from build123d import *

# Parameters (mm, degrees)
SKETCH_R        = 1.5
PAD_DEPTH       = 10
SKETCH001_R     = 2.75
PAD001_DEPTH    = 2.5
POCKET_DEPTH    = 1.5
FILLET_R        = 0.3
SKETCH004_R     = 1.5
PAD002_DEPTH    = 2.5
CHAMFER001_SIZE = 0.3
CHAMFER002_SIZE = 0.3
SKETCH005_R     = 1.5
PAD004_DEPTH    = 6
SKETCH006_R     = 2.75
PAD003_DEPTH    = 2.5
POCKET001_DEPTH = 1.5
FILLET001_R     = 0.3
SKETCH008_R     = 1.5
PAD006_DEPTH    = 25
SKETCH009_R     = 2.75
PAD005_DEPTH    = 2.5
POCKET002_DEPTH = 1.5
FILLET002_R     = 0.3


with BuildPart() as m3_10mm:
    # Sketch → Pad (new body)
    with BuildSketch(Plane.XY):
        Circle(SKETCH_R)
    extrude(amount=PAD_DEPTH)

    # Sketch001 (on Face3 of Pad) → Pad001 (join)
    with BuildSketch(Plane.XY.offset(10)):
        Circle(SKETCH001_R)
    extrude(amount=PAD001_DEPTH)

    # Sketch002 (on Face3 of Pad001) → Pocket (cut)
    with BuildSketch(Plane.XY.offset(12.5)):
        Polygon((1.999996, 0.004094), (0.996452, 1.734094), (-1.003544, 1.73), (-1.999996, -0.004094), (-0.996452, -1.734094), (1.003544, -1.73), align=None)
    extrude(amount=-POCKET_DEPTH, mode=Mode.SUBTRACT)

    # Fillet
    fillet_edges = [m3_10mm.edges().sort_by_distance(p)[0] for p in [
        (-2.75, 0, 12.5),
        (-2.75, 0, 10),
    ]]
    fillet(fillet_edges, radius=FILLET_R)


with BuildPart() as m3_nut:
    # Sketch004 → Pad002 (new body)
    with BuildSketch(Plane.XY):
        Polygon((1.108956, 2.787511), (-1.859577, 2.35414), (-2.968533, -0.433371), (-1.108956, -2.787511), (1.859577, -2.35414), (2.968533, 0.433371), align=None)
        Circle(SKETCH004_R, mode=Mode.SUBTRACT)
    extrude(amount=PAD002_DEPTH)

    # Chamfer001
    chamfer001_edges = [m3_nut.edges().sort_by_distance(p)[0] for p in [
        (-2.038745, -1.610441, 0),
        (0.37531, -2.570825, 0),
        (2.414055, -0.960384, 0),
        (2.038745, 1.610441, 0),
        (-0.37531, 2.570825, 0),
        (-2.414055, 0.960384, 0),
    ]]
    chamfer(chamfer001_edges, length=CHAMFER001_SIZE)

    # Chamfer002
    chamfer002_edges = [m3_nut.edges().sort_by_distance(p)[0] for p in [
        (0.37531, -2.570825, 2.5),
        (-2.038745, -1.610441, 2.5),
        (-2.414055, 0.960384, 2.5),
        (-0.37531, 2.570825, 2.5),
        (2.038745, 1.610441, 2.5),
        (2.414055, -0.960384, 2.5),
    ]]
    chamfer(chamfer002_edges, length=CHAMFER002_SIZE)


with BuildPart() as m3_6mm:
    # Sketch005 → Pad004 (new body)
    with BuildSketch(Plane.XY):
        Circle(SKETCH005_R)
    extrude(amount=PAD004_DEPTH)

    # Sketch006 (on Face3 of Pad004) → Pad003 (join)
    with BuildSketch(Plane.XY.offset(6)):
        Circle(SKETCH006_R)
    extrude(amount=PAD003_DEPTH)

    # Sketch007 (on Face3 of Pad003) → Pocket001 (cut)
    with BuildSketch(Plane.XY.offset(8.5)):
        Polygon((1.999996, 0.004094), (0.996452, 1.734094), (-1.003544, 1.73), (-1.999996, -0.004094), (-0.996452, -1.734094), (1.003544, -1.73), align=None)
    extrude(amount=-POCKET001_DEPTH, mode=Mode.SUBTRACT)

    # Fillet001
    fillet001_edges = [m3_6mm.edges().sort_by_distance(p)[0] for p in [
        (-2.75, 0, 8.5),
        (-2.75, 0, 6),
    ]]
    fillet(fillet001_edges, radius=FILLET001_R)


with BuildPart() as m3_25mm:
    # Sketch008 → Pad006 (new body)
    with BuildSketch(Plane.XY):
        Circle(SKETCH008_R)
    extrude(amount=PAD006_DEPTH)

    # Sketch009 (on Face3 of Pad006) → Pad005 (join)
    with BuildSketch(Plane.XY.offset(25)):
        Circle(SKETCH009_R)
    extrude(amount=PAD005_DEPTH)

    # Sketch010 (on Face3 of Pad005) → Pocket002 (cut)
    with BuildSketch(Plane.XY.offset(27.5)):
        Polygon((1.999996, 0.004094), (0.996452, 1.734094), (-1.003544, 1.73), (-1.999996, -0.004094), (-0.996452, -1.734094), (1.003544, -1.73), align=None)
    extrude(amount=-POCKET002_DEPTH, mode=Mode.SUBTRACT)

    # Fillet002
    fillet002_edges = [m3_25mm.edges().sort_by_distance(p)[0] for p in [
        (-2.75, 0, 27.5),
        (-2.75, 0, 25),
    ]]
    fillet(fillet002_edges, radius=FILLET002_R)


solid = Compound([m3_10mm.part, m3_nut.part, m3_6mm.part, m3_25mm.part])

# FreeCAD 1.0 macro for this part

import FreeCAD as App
import Part
import Sketcher

V = App.Vector


def edges_at(feature, points):
    """Names of the edges that pass closest to the given points."""
    edges = feature.Shape.Edges
    near = lambda p: min(range(len(edges)), key=lambda i: edges[i].distToShape(Part.Vertex(*p))[0])
    return sorted({f"Edge{near(p) + 1}" for p in points})

doc = App.newDocument("Part")
body = doc.addObject("PartDesign::Body", "Body")

sketch1 = body.newObject("Sketcher::SketchObject", "Sketch")
sketch1.AttachmentSupport = (doc.getObject("XY_Plane"), [""])
sketch1.MapMode = "FlatFace"
sketch1.addGeometry(Part.Circle(V(0, 0, 0), V(0, 0, 1), 1.5), False)
sketch1.addConstraint(Sketcher.Constraint("Coincident", 0, 3, -1, 1))
sketch1.addConstraint(Sketcher.Constraint("Diameter", 0, 3.0))
pad1 = body.newObject("PartDesign::Pad", "Pad")
pad1.Profile = sketch1
pad1.Length = 10

sketch2 = body.newObject("Sketcher::SketchObject", "Sketch001")
sketch2.AttachmentSupport = (doc.getObject("XY_Plane"), [""])
sketch2.MapMode = "FlatFace"
sketch2.AttachmentOffset = App.Placement(V(0, 0, 10), App.Rotation())
sketch2.addGeometry(Part.Circle(V(0, 0, 0), V(0, 0, 1), 2.75), False)
sketch2.addConstraint(Sketcher.Constraint("Coincident", 0, 3, -1, 1))
sketch2.addConstraint(Sketcher.Constraint("Diameter", 0, 5.5))
pad2 = body.newObject("PartDesign::Pad", "Pad001")
pad2.Profile = sketch2
pad2.Length = 2.5

sketch3 = body.newObject("Sketcher::SketchObject", "Sketch002")
sketch3.AttachmentSupport = (doc.getObject("XY_Plane"), [""])
sketch3.MapMode = "FlatFace"
sketch3.AttachmentOffset = App.Placement(V(0, 0, 12.5), App.Rotation())
sketch3.addGeometry(Part.LineSegment(V(1.999996, 0.004094, 0), V(0.996452, 1.734094, 0)), False)
sketch3.addGeometry(Part.LineSegment(V(0.996452, 1.734094, 0), V(-1.003544, 1.73, 0)), False)
sketch3.addGeometry(Part.LineSegment(V(-1.003544, 1.73, 0), V(-1.999996, -0.004094, 0)), False)
sketch3.addGeometry(Part.LineSegment(V(-1.999996, -0.004094, 0), V(-0.996452, -1.734094, 0)), False)
sketch3.addGeometry(Part.LineSegment(V(-0.996452, -1.734094, 0), V(1.003544, -1.73, 0)), False)
sketch3.addGeometry(Part.LineSegment(V(1.003544, -1.73, 0), V(1.999996, 0.004094, 0)), False)
sketch3.addConstraint(Sketcher.Constraint("Coincident", 0, 2, 1, 1))
sketch3.addConstraint(Sketcher.Constraint("Coincident", 1, 2, 2, 1))
sketch3.addConstraint(Sketcher.Constraint("Coincident", 2, 2, 3, 1))
sketch3.addConstraint(Sketcher.Constraint("Coincident", 3, 2, 4, 1))
sketch3.addConstraint(Sketcher.Constraint("Coincident", 4, 2, 5, 1))
sketch3.addConstraint(Sketcher.Constraint("Coincident", 5, 2, 0, 1))
sketch3.addConstraint(Sketcher.Constraint("Symmetric", 0, 2, 3, 2, -1, 1))
sketch3.addConstraint(Sketcher.Constraint("Symmetric", 1, 2, 4, 2, -1, 1))
sketch3.addConstraint(Sketcher.Constraint("Symmetric", 2, 2, 5, 2, -1, 1))
sketch3.addConstraint(Sketcher.Constraint("Equal", 0, 1))
sketch3.addConstraint(Sketcher.Constraint("Equal", 1, 2))
sketch3.addConstraint(Sketcher.Constraint("Distance", 0, 2.0))
sketch3.addConstraint(Sketcher.Constraint("DistanceY", -1, 1, 1, 2, 1.73))
sketch3.addConstraint(Sketcher.Constraint("DistanceY", 3, 2, 2, 2, 1.73))
sketch3.addConstraint(Sketcher.Constraint("DistanceX", 2, 2, 0, 2, 2.996448))
pocket1 = body.newObject("PartDesign::Pocket", "Pocket")
pocket1.Profile = sketch3
pocket1.Length = 1.5
doc.recompute()

fillet = body.newObject("PartDesign::Fillet", "Fillet")
fillet.Base = (pocket1, edges_at(pocket1, [(-2.75, 0, 12.5), (-2.75, 0, 10)]))
fillet.Radius = 0.3
body2 = doc.addObject("PartDesign::Body", "Body001")

sketch4 = body2.newObject("Sketcher::SketchObject", "Sketch003")
sketch4.AttachmentSupport = (doc.getObject("XY_Plane001"), [""])
sketch4.MapMode = "FlatFace"
sketch4.addGeometry(Part.LineSegment(V(1.108956, 2.787511, 0), V(-1.859577, 2.35414, 0)), False)
sketch4.addGeometry(Part.LineSegment(V(-1.859577, 2.35414, 0), V(-2.968533, -0.433371, 0)), False)
sketch4.addGeometry(Part.LineSegment(V(-2.968533, -0.433371, 0), V(-1.108956, -2.787511, 0)), False)
sketch4.addGeometry(Part.LineSegment(V(-1.108956, -2.787511, 0), V(1.859577, -2.35414, 0)), False)
sketch4.addGeometry(Part.LineSegment(V(1.859577, -2.35414, 0), V(2.968533, 0.433371, 0)), False)
sketch4.addGeometry(Part.LineSegment(V(2.968533, 0.433371, 0), V(1.108956, 2.787511, 0)), False)
sketch4.addGeometry(Part.Circle(V(0, 0, 0), V(0, 0, 1), 1.5), False)
sketch4.addConstraint(Sketcher.Constraint("Coincident", 0, 2, 1, 1))
sketch4.addConstraint(Sketcher.Constraint("Coincident", 1, 2, 2, 1))
sketch4.addConstraint(Sketcher.Constraint("Coincident", 2, 2, 3, 1))
sketch4.addConstraint(Sketcher.Constraint("Coincident", 3, 2, 4, 1))
sketch4.addConstraint(Sketcher.Constraint("Coincident", 4, 2, 5, 1))
sketch4.addConstraint(Sketcher.Constraint("Coincident", 5, 2, 0, 1))
sketch4.addConstraint(Sketcher.Constraint("Coincident", 6, 3, -1, 1))
sketch4.addConstraint(Sketcher.Constraint("Symmetric", 0, 2, 3, 2, -1, 1))
sketch4.addConstraint(Sketcher.Constraint("Symmetric", 1, 2, 4, 2, -1, 1))
sketch4.addConstraint(Sketcher.Constraint("Symmetric", 2, 2, 5, 2, -1, 1))
sketch4.addConstraint(Sketcher.Constraint("Equal", 0, 1))
sketch4.addConstraint(Sketcher.Constraint("Equal", 1, 2))
sketch4.addConstraint(Sketcher.Constraint("Diameter", 6, 3.0))
sketch4.addConstraint(Sketcher.Constraint("Distance", 0, 3.0))
sketch4.addConstraint(Sketcher.Constraint("DistanceY", -1, 1, 0, 2, 2.35414))
sketch4.addConstraint(Sketcher.Constraint("DistanceY", 1, 2, -1, 1, 0.433371))
sketch4.addConstraint(Sketcher.Constraint("DistanceY", 2, 2, -1, 1, 2.787511))
pad3 = body2.newObject("PartDesign::Pad", "Pad002")
pad3.Profile = sketch4
pad3.Length = 2.5
doc.recompute()

chamfer = body2.newObject("PartDesign::Chamfer", "Chamfer")
chamfer.Base = (pad3, edges_at(pad3, [
    (-2.039, -1.61, 0),
    (0.375, -2.571, 0),
    (2.414, -0.96, 0),
    (2.039, 1.61, 0),
    (-0.375, 2.571, 0),
    (-2.414, 0.96, 0),
]))
chamfer.Size = 0.3
doc.recompute()

chamfer2 = body2.newObject("PartDesign::Chamfer", "Chamfer001")
chamfer2.Base = (chamfer, edges_at(chamfer, [
    (0.375, -2.571, 2.5),
    (-2.039, -1.61, 2.5),
    (-2.414, 0.96, 2.5),
    (-0.375, 2.571, 2.5),
    (2.039, 1.61, 2.5),
    (2.414, -0.96, 2.5),
]))
chamfer2.Size = 0.3
body3 = doc.addObject("PartDesign::Body", "Body002")

sketch5 = body3.newObject("Sketcher::SketchObject", "Sketch004")
sketch5.AttachmentSupport = (doc.getObject("XY_Plane002"), [""])
sketch5.MapMode = "FlatFace"
sketch5.addGeometry(Part.Circle(V(0, 0, 0), V(0, 0, 1), 1.5), False)
sketch5.addConstraint(Sketcher.Constraint("Coincident", 0, 3, -1, 1))
sketch5.addConstraint(Sketcher.Constraint("Diameter", 0, 3.0))
pad4 = body3.newObject("PartDesign::Pad", "Pad003")
pad4.Profile = sketch5
pad4.Length = 6

sketch6 = body3.newObject("Sketcher::SketchObject", "Sketch005")
sketch6.AttachmentSupport = (doc.getObject("XY_Plane002"), [""])
sketch6.MapMode = "FlatFace"
sketch6.AttachmentOffset = App.Placement(V(0, 0, 6), App.Rotation())
sketch6.addGeometry(Part.Circle(V(0, 0, 0), V(0, 0, 1), 2.75), False)
sketch6.addConstraint(Sketcher.Constraint("Coincident", 0, 3, -1, 1))
sketch6.addConstraint(Sketcher.Constraint("Diameter", 0, 5.5))
pad5 = body3.newObject("PartDesign::Pad", "Pad004")
pad5.Profile = sketch6
pad5.Length = 2.5

sketch7 = body3.newObject("Sketcher::SketchObject", "Sketch006")
sketch7.AttachmentSupport = (doc.getObject("XY_Plane002"), [""])
sketch7.MapMode = "FlatFace"
sketch7.AttachmentOffset = App.Placement(V(0, 0, 8.5), App.Rotation())
sketch7.addGeometry(Part.LineSegment(V(1.999996, 0.004094, 0), V(0.996452, 1.734094, 0)), False)
sketch7.addGeometry(Part.LineSegment(V(0.996452, 1.734094, 0), V(-1.003544, 1.73, 0)), False)
sketch7.addGeometry(Part.LineSegment(V(-1.003544, 1.73, 0), V(-1.999996, -0.004094, 0)), False)
sketch7.addGeometry(Part.LineSegment(V(-1.999996, -0.004094, 0), V(-0.996452, -1.734094, 0)), False)
sketch7.addGeometry(Part.LineSegment(V(-0.996452, -1.734094, 0), V(1.003544, -1.73, 0)), False)
sketch7.addGeometry(Part.LineSegment(V(1.003544, -1.73, 0), V(1.999996, 0.004094, 0)), False)
sketch7.addConstraint(Sketcher.Constraint("Coincident", 0, 2, 1, 1))
sketch7.addConstraint(Sketcher.Constraint("Coincident", 1, 2, 2, 1))
sketch7.addConstraint(Sketcher.Constraint("Coincident", 2, 2, 3, 1))
sketch7.addConstraint(Sketcher.Constraint("Coincident", 3, 2, 4, 1))
sketch7.addConstraint(Sketcher.Constraint("Coincident", 4, 2, 5, 1))
sketch7.addConstraint(Sketcher.Constraint("Coincident", 5, 2, 0, 1))
sketch7.addConstraint(Sketcher.Constraint("Symmetric", 0, 2, 3, 2, -1, 1))
sketch7.addConstraint(Sketcher.Constraint("Symmetric", 1, 2, 4, 2, -1, 1))
sketch7.addConstraint(Sketcher.Constraint("Symmetric", 2, 2, 5, 2, -1, 1))
sketch7.addConstraint(Sketcher.Constraint("Equal", 0, 1))
sketch7.addConstraint(Sketcher.Constraint("Equal", 1, 2))
sketch7.addConstraint(Sketcher.Constraint("Distance", 0, 2.0))
sketch7.addConstraint(Sketcher.Constraint("DistanceY", -1, 1, 1, 2, 1.73))
sketch7.addConstraint(Sketcher.Constraint("DistanceY", 3, 2, 2, 2, 1.73))
sketch7.addConstraint(Sketcher.Constraint("DistanceX", 2, 2, 0, 2, 2.996448))
pocket2 = body3.newObject("PartDesign::Pocket", "Pocket001")
pocket2.Profile = sketch7
pocket2.Length = 1.5
doc.recompute()

fillet2 = body3.newObject("PartDesign::Fillet", "Fillet001")
fillet2.Base = (pocket2, edges_at(pocket2, [(-2.75, 0, 8.5), (-2.75, 0, 6)]))
fillet2.Radius = 0.3
body4 = doc.addObject("PartDesign::Body", "Body003")

sketch8 = body4.newObject("Sketcher::SketchObject", "Sketch007")
sketch8.AttachmentSupport = (doc.getObject("XY_Plane003"), [""])
sketch8.MapMode = "FlatFace"
sketch8.addGeometry(Part.Circle(V(0, 0, 0), V(0, 0, 1), 1.5), False)
sketch8.addConstraint(Sketcher.Constraint("Coincident", 0, 3, -1, 1))
sketch8.addConstraint(Sketcher.Constraint("Diameter", 0, 3.0))
pad6 = body4.newObject("PartDesign::Pad", "Pad005")
pad6.Profile = sketch8
pad6.Length = 25

sketch9 = body4.newObject("Sketcher::SketchObject", "Sketch008")
sketch9.AttachmentSupport = (doc.getObject("XY_Plane003"), [""])
sketch9.MapMode = "FlatFace"
sketch9.AttachmentOffset = App.Placement(V(0, 0, 25), App.Rotation())
sketch9.addGeometry(Part.Circle(V(0, 0, 0), V(0, 0, 1), 2.75), False)
sketch9.addConstraint(Sketcher.Constraint("Coincident", 0, 3, -1, 1))
sketch9.addConstraint(Sketcher.Constraint("Diameter", 0, 5.5))
pad7 = body4.newObject("PartDesign::Pad", "Pad006")
pad7.Profile = sketch9
pad7.Length = 2.5

sketch10 = body4.newObject("Sketcher::SketchObject", "Sketch009")
sketch10.AttachmentSupport = (doc.getObject("XY_Plane003"), [""])
sketch10.MapMode = "FlatFace"
sketch10.AttachmentOffset = App.Placement(V(0, 0, 27.5), App.Rotation())
sketch10.addGeometry(Part.LineSegment(V(1.999996, 0.004094, 0), V(0.996452, 1.734094, 0)), False)
sketch10.addGeometry(Part.LineSegment(V(0.996452, 1.734094, 0), V(-1.003544, 1.73, 0)), False)
sketch10.addGeometry(Part.LineSegment(V(-1.003544, 1.73, 0), V(-1.999996, -0.004094, 0)), False)
sketch10.addGeometry(Part.LineSegment(V(-1.999996, -0.004094, 0), V(-0.996452, -1.734094, 0)), False)
sketch10.addGeometry(Part.LineSegment(V(-0.996452, -1.734094, 0), V(1.003544, -1.73, 0)), False)
sketch10.addGeometry(Part.LineSegment(V(1.003544, -1.73, 0), V(1.999996, 0.004094, 0)), False)
sketch10.addConstraint(Sketcher.Constraint("Coincident", 0, 2, 1, 1))
sketch10.addConstraint(Sketcher.Constraint("Coincident", 1, 2, 2, 1))
sketch10.addConstraint(Sketcher.Constraint("Coincident", 2, 2, 3, 1))
sketch10.addConstraint(Sketcher.Constraint("Coincident", 3, 2, 4, 1))
sketch10.addConstraint(Sketcher.Constraint("Coincident", 4, 2, 5, 1))
sketch10.addConstraint(Sketcher.Constraint("Coincident", 5, 2, 0, 1))
sketch10.addConstraint(Sketcher.Constraint("Symmetric", 0, 2, 3, 2, -1, 1))
sketch10.addConstraint(Sketcher.Constraint("Symmetric", 1, 2, 4, 2, -1, 1))
sketch10.addConstraint(Sketcher.Constraint("Symmetric", 2, 2, 5, 2, -1, 1))
sketch10.addConstraint(Sketcher.Constraint("Equal", 0, 1))
sketch10.addConstraint(Sketcher.Constraint("Equal", 1, 2))
sketch10.addConstraint(Sketcher.Constraint("Distance", 0, 2.0))
sketch10.addConstraint(Sketcher.Constraint("DistanceY", -1, 1, 1, 2, 1.73))
sketch10.addConstraint(Sketcher.Constraint("DistanceY", 3, 2, 2, 2, 1.73))
sketch10.addConstraint(Sketcher.Constraint("DistanceX", 2, 2, 0, 2, 2.996448))
pocket3 = body4.newObject("PartDesign::Pocket", "Pocket002")
pocket3.Profile = sketch10
pocket3.Length = 1.5
doc.recompute()

fillet3 = body4.newObject("PartDesign::Fillet", "Fillet002")
fillet3.Base = (pocket3, edges_at(pocket3, [(-2.75, 0, 27.5), (-2.75, 0, 25)]))
fillet3.Radius = 0.3

doc.recompute()
